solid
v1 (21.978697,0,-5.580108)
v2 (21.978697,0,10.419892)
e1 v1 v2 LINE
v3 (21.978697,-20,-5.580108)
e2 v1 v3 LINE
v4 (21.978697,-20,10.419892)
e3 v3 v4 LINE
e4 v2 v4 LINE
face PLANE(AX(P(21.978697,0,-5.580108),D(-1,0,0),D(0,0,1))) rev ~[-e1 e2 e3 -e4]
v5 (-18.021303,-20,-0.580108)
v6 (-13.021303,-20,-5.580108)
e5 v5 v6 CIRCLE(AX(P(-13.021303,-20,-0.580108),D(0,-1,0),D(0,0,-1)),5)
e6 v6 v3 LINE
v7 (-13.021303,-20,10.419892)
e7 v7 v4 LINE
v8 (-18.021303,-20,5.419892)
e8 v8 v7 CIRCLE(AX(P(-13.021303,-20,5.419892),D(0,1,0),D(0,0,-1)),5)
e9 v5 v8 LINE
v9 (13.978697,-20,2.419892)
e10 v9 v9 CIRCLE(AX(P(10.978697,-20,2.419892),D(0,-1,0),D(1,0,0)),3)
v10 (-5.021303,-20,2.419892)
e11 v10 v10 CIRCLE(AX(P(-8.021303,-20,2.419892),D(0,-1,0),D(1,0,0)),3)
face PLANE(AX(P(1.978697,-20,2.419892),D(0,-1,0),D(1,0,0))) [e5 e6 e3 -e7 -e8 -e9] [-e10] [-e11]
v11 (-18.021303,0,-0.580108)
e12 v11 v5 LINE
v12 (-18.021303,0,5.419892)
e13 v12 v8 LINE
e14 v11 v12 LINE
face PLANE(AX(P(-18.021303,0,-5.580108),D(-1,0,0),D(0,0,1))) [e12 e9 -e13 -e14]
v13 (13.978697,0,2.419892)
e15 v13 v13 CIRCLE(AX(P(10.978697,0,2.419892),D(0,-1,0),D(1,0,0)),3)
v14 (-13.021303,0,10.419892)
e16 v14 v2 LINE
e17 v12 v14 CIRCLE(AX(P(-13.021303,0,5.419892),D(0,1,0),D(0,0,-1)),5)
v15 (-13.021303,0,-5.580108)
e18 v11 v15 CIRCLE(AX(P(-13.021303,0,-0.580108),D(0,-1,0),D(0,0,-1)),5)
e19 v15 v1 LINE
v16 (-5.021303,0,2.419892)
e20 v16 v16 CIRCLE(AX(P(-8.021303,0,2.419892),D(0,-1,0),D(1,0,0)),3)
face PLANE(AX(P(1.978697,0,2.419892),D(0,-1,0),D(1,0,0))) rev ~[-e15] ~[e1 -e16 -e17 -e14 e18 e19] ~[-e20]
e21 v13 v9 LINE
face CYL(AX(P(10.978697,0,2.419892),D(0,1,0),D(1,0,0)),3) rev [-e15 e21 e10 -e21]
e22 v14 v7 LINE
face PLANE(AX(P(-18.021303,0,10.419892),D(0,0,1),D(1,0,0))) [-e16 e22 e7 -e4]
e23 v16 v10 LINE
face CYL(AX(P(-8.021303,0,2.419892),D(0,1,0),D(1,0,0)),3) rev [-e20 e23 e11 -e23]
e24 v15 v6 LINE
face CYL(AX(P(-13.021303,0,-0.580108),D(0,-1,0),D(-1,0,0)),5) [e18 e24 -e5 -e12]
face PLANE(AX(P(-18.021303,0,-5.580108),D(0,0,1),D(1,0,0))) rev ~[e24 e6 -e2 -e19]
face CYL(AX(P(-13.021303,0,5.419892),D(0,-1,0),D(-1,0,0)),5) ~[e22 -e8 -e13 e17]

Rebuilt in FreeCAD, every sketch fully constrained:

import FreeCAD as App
import Part
import Sketcher


def edges_at(feature, points):
    """Names of the edges that pass closest to the given points."""
    edges = feature.Shape.Edges
    near = lambda p: min(range(len(edges)), key=lambda i: edges[i].distToShape(Part.Vertex(*p))[0])
    return sorted({f"Edge{near(p) + 1}" for p in points})

doc = App.newDocument("Part")
body = doc.addObject("PartDesign::Body", "Body")

# Sketch on XZ plane
sketch1 = body.newObject("Sketcher::SketchObject", "Sketch")
sketch1.AttachmentSupport = (doc.getObject("XZ_Plane"), [""])
sketch1.MapMode = "FlatFace"
sketch1.addGeometry(Part.LineSegment(App.Vector(-18.021303, 10.419892, 0), App.Vector(-18.021303, -5.580108, 0)), False)
sketch1.addGeometry(Part.LineSegment(App.Vector(-18.021303, -5.580108, 0), App.Vector(21.978697, -5.580108, 0)), False)
sketch1.addGeometry(Part.LineSegment(App.Vector(21.978697, -5.580108, 0), App.Vector(21.978697, 10.419892, 0)), False)
sketch1.addGeometry(Part.LineSegment(App.Vector(21.978697, 10.419892, 0), App.Vector(-18.021303, 10.419892, 0)), False)
sketch1.addGeometry(Part.Circle(App.Vector(-8.021303, 2.419892, 0), App.Vector(0, 0, 1), 3), False)
sketch1.addGeometry(Part.Circle(App.Vector(10.978697, 2.419892, 0), App.Vector(0, 0, 1), 3), False)
sketch1.addConstraint(Sketcher.Constraint("Coincident", 0, 2, 1, 1))
sketch1.addConstraint(Sketcher.Constraint("Coincident", 1, 2, 2, 1))
sketch1.addConstraint(Sketcher.Constraint("Coincident", 2, 2, 3, 1))
sketch1.addConstraint(Sketcher.Constraint("Coincident", 3, 2, 0, 1))
sketch1.addConstraint(Sketcher.Constraint("Vertical", 0))
sketch1.addConstraint(Sketcher.Constraint("Horizontal", 1))
sketch1.addConstraint(Sketcher.Constraint("Vertical", 2))
sketch1.addConstraint(Sketcher.Constraint("Horizontal", 3))
sketch1.addConstraint(Sketcher.Constraint("Equal", 4, 5))
sketch1.addConstraint(Sketcher.Constraint("Horizontal", 4, 3, 5, 3))
sketch1.addConstraint(Sketcher.Constraint("Diameter", 4, 6.0))
sketch1.addConstraint(Sketcher.Constraint("DistanceX", 1, 1, 1, 2, 40.0))
sketch1.addConstraint(Sketcher.Constraint("DistanceY", 0, 2, 0, 1, 16.0))
sketch1.addConstraint(Sketcher.Constraint("DistanceX", 4, 3, 5, 3, 19.0))
sketch1.addConstraint(Sketcher.Constraint("DistanceX", 0, 2, 4, 3, 10.0))
sketch1.addConstraint(Sketcher.Constraint("DistanceY", 0, 2, 4, 3, 8.0))
sketch1.addConstraint(Sketcher.Constraint("DistanceY", -1, 1, 4, 3, 2.419892))
sketch1.addConstraint(Sketcher.Constraint("DistanceX", 4, 3, -1, 1, 8.021303))
pad1 = body.newObject("PartDesign::Pad", "Pad")
pad1.Profile = sketch1
pad1.Length = 20
doc.recompute()

fillet = body.newObject("PartDesign::Fillet", "Fillet")
fillet.Base = (pad1, edges_at(pad1, [(-18.021, -10, 10.42), (-18.021, -10, -5.58)]))
fillet.Radius = 5

doc.recompute()
